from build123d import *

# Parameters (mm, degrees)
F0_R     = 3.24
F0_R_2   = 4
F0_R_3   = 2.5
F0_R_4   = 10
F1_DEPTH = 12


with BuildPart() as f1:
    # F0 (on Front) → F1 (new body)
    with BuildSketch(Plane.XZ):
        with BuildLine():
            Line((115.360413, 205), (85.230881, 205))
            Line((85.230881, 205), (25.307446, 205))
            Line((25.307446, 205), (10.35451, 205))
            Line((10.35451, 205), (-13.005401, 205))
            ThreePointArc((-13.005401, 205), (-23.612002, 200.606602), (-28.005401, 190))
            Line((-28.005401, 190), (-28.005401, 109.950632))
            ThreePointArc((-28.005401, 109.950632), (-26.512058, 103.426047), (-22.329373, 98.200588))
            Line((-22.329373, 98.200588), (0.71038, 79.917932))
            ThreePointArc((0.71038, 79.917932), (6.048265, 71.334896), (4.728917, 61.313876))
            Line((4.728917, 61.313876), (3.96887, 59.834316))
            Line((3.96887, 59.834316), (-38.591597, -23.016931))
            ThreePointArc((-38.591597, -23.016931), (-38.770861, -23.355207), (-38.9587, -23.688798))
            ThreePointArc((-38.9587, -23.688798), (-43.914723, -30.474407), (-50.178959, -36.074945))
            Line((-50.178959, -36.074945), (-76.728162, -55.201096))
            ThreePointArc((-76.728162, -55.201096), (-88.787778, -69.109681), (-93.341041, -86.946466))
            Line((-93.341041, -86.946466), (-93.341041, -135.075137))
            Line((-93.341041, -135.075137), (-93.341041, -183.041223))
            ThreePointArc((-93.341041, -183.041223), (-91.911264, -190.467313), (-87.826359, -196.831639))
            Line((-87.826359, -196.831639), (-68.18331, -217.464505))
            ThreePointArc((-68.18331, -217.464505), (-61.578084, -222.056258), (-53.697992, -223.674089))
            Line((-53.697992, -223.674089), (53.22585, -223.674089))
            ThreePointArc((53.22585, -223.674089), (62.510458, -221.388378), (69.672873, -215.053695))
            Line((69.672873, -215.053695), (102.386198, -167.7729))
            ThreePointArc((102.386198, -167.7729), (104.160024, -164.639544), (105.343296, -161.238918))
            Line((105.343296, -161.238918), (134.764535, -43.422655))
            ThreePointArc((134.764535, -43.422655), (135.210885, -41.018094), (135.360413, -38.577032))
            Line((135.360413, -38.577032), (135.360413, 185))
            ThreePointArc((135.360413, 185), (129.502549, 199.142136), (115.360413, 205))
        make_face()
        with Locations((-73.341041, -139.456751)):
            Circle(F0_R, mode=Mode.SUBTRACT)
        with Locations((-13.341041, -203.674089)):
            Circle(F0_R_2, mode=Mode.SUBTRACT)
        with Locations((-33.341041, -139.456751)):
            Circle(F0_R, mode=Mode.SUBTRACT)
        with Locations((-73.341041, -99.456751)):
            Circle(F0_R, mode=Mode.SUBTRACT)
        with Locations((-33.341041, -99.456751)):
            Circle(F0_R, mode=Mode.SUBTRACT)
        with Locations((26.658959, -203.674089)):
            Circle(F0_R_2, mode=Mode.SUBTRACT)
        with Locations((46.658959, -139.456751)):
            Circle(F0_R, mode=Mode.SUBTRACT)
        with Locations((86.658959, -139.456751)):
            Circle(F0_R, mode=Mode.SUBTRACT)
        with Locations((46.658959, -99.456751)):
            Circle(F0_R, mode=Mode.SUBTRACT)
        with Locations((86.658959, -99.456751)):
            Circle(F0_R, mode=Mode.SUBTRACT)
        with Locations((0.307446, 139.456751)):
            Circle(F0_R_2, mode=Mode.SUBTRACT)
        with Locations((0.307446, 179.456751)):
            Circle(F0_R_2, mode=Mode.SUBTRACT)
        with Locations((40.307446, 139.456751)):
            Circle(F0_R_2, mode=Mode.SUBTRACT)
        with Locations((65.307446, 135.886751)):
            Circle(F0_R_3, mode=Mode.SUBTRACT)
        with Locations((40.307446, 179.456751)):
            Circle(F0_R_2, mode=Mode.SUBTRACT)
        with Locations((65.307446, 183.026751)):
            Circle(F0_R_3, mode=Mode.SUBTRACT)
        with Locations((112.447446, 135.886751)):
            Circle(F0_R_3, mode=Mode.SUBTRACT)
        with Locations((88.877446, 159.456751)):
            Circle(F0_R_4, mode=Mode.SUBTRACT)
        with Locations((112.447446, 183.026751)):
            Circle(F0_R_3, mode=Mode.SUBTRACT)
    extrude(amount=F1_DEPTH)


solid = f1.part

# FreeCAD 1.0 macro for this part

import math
import FreeCAD as App
import Part
import Sketcher

doc = App.newDocument("Part")
body = doc.addObject("PartDesign::Body", "Body")

# Sketch on XZ plane
sketch1 = body.newObject("Sketcher::SketchObject", "Sketch")
sketch1.AttachmentSupport = (doc.getObject("XZ_Plane"), [""])
sketch1.MapMode = "FlatFace"
sketch1.addGeometry([
    Part.LineSegment(App.Vector(115.360413, 205, 0), App.Vector(-13.005401, 205, 0)),  # 0
    Part.ArcOfCircle(Part.Circle(App.Vector(-13.0054, 189.999999, 0), App.Vector(0, 0, 1), 15.000001), math.radians(90.000003), math.radians(179.999997)),  # 1
    Part.LineSegment(App.Vector(-28.005401, 190, 0), App.Vector(-28.005401, 109.950632, 0)),  # 2
    Part.ArcOfCircle(Part.Circle(App.Vector(-13.005401, 109.950633, 0), App.Vector(0, 0, 1), 15), math.radians(-179.999998), math.radians(-128.432933)),  # 3
    Part.LineSegment(App.Vector(-22.329373, 98.200588, 0), App.Vector(0.71038, 79.917932, 0)),  # 4
    Part.ArcOfCircle(Part.Circle(App.Vector(-8.613594, 68.167886, 0), App.Vector(0, 0, 1), 15.000002), math.radians(-27.189438), math.radians(51.567063)),  # 5
    Part.LineSegment(App.Vector(4.728917, 61.313876, 0), App.Vector(3.96887, 59.834316, 0)),  # 6
    Part.LineSegment(App.Vector(3.96887, 59.834316, 0), App.Vector(-38.591597, -23.016931, 0)),  # 7
    Part.ArcOfCircle(Part.Circle(App.Vector(-51.933711, -16.163126, 0), App.Vector(0, 0, 1), 14.999555), math.radians(-30.114279), math.radians(-27.189432)),  # 8
    Part.ArcOfCircle(Part.Circle(App.Vector(-73.559777, -3.619795, 0), App.Vector(0, 0, 1), 39.999992), math.radians(-54.230873), math.radians(-30.114202)),  # 9
    Part.LineSegment(App.Vector(-50.178959, -36.074945, 0), App.Vector(-76.728162, -55.201096, 0)),  # 10
    Part.ArcOfCircle(Part.Circle(App.Vector(-53.347338, -87.656252, 0), App.Vector(0, 0, 1), 40.000001), math.radians(125.769129), math.radians(178.983254)),  # 11
    Part.LineSegment(App.Vector(-93.341041, -86.946466, 0), App.Vector(-93.341041, -183.041223, 0)),  # 12
    Part.ArcOfCircle(Part.Circle(App.Vector(-73.341037, -183.041222, 0), App.Vector(0, 0, 1), 20.000004), math.radians(-179.999997), math.radians(-136.407818)),  # 13
    Part.LineSegment(App.Vector(-87.826359, -196.831639, 0), App.Vector(-68.18331, -217.464505, 0)),  # 14
    Part.ArcOfCircle(Part.Circle(App.Vector(-53.69799, -203.674084, 0), App.Vector(0, 0, 1), 20.000005), math.radians(-136.407805), math.radians(-90.000006)),  # 15
    Part.LineSegment(App.Vector(-53.697992, -223.674089, 0), App.Vector(53.22585, -223.674089, 0)),  # 16
    Part.ArcOfCircle(Part.Circle(App.Vector(53.225848, -203.674085, 0), App.Vector(0, 0, 1), 20.000004), math.radians(-89.999994), math.radians(-34.679155)),  # 17
    Part.LineSegment(App.Vector(69.672873, -215.053695, 0), App.Vector(102.386198, -167.7729, 0)),  # 18
    Part.ArcOfCircle(Part.Circle(App.Vector(85.939155, -156.393286, 0), App.Vector(0, 0, 1), 20.000021), math.radians(-34.679136), math.radians(-14.021226)),  # 19
    Part.LineSegment(App.Vector(105.343296, -161.238918, 0), App.Vector(134.764535, -43.422655, 0)),  # 20
    Part.ArcOfCircle(Part.Circle(App.Vector(115.360466, -38.57704, 0), App.Vector(0, 0, 1), 19.999947), math.radians(-14.021229), math.radians(0.000022)),  # 21
    Part.LineSegment(App.Vector(135.360413, -38.577032, 0), App.Vector(135.360413, 185, 0)),  # 22
    Part.ArcOfCircle(Part.Circle(App.Vector(115.360414, 185.000001, 0), App.Vector(0, 0, 1), 19.999999), math.radians(-0.000004), math.radians(90.000004)),  # 23
    Part.Circle(App.Vector(-73.341041, -139.456751, 0), App.Vector(0, 0, 1), 3.24),  # 24
    Part.Circle(App.Vector(-33.341041, -139.456751, 0), App.Vector(0, 0, 1), 3.24),  # 25
    Part.Circle(App.Vector(-13.341041, -203.674089, 0), App.Vector(0, 0, 1), 4),  # 26
    Part.Circle(App.Vector(-73.341041, -99.456751, 0), App.Vector(0, 0, 1), 3.24),  # 27
    Part.Circle(App.Vector(-33.341041, -99.456751, 0), App.Vector(0, 0, 1), 3.24),  # 28
    Part.Circle(App.Vector(26.658959, -203.674089, 0), App.Vector(0, 0, 1), 4),  # 29
    Part.Circle(App.Vector(46.658959, -139.456751, 0), App.Vector(0, 0, 1), 3.24),  # 30
    Part.Circle(App.Vector(86.658959, -139.456751, 0), App.Vector(0, 0, 1), 3.24),  # 31
    Part.Circle(App.Vector(46.658959, -99.456751, 0), App.Vector(0, 0, 1), 3.24),  # 32
    Part.Circle(App.Vector(86.658959, -99.456751, 0), App.Vector(0, 0, 1), 3.24),  # 33
    Part.Circle(App.Vector(0.307446, 139.456751, 0), App.Vector(0, 0, 1), 4),  # 34
    Part.Circle(App.Vector(0.307446, 179.456751, 0), App.Vector(0, 0, 1), 4),  # 35
    Part.Circle(App.Vector(65.307446, 135.886751, 0), App.Vector(0, 0, 1), 2.5),  # 36
    Part.Circle(App.Vector(40.307446, 139.456751, 0), App.Vector(0, 0, 1), 4),  # 37
    Part.Circle(App.Vector(40.307446, 179.456751, 0), App.Vector(0, 0, 1), 4),  # 38
    Part.Circle(App.Vector(65.307446, 183.026751, 0), App.Vector(0, 0, 1), 2.5),  # 39
    Part.Circle(App.Vector(112.447446, 135.886751, 0), App.Vector(0, 0, 1), 2.5),  # 40
    Part.Circle(App.Vector(88.877446, 159.456751, 0), App.Vector(0, 0, 1), 10),  # 41
    Part.Circle(App.Vector(112.447446, 183.026751, 0), App.Vector(0, 0, 1), 2.5),  # 42
], False)
sketch1.addConstraint([
    Sketcher.Constraint("Coincident", 0, 2, 1, 1),
    Sketcher.Constraint("Coincident", 1, 2, 2, 1),
    Sketcher.Constraint("Coincident", 2, 2, 3, 1),
    Sketcher.Constraint("Coincident", 3, 2, 4, 1),
    Sketcher.Constraint("Coincident", 4, 2, 5, 2),
    Sketcher.Constraint("Coincident", 5, 1, 6, 1),
    Sketcher.Constraint("Coincident", 6, 2, 7, 1),
    Sketcher.Constraint("Coincident", 7, 2, 8, 2),
    Sketcher.Constraint("Coincident", 8, 1, 9, 2),
    Sketcher.Constraint("Coincident", 9, 1, 10, 1),
    Sketcher.Constraint("Coincident", 10, 2, 11, 1),
    Sketcher.Constraint("Coincident", 11, 2, 12, 1),
    Sketcher.Constraint("Coincident", 12, 2, 13, 1),
    Sketcher.Constraint("Coincident", 13, 2, 14, 1),
    Sketcher.Constraint("Coincident", 14, 2, 15, 1),
    Sketcher.Constraint("Coincident", 15, 2, 16, 1),
    Sketcher.Constraint("Coincident", 16, 2, 17, 1),
    Sketcher.Constraint("Coincident", 17, 2, 18, 1),
    Sketcher.Constraint("Coincident", 18, 2, 19, 1),
    Sketcher.Constraint("Coincident", 19, 2, 20, 1),
    Sketcher.Constraint("Coincident", 20, 2, 21, 1),
    Sketcher.Constraint("Coincident", 21, 2, 22, 1),
    Sketcher.Constraint("Coincident", 22, 2, 23, 1),
    Sketcher.Constraint("Coincident", 23, 2, 0, 1),
    Sketcher.Constraint("Horizontal", 0),
    Sketcher.Constraint("Vertical", 2),
    Sketcher.Constraint("Vertical", 12),
    Sketcher.Constraint("Horizontal", 16),
    Sketcher.Constraint("Vertical", 22),
    Sketcher.Constraint("Diameter", 26, 8.0),
    Sketcher.Constraint("Diameter", 29, 8.0),
    Sketcher.Constraint("Diameter", 34, 8.0),
    Sketcher.Constraint("Diameter", 35, 8.0),
    Sketcher.Constraint("Diameter", 36, 5.0),
    Sketcher.Constraint("Diameter", 37, 8.0),
    Sketcher.Constraint("Diameter", 38, 8.0),
    Sketcher.Constraint("Diameter", 39, 5.0),
    Sketcher.Constraint("Diameter", 40, 5.0),
    Sketcher.Constraint("Diameter", 41, 20.0),
    Sketcher.Constraint("Diameter", 42, 5.0),
    Sketcher.Constraint("Radius", 1, 15.000001),
    Sketcher.Constraint("Radius", 3, 15.0),
    Sketcher.Constraint("Radius", 11, 40.000001),
    Sketcher.Constraint("Radius", 23, 19.999999),
    Sketcher.Constraint("Diameter", 24, 6.48),
    Sketcher.Constraint("Diameter", 25, 6.48),
    Sketcher.Constraint("Diameter", 27, 6.48),
    Sketcher.Constraint("Diameter", 28, 6.48),
    Sketcher.Constraint("Diameter", 30, 6.48),
    Sketcher.Constraint("Diameter", 31, 6.48),
    Sketcher.Constraint("Diameter", 32, 6.48),
    Sketcher.Constraint("Diameter", 33, 6.48),
    Sketcher.Constraint("DistanceY", -1, 1, 1, 3, 189.999999),
    Sketcher.Constraint("DistanceY", -1, 1, 1, 2, 190.0),
    Sketcher.Constraint("DistanceY", -1, 1, 22, 2, 185.0),
    Sketcher.Constraint("DistanceX", 24, 3, 25, 3, 40.0),
    Sketcher.Constraint("DistanceX", 25, 3, 26, 3, 20.0),
    Sketcher.Constraint("DistanceY", 24, 3, 27, 3, 40.0),
    Sketcher.Constraint("DistanceX", 27, 3, 25, 3, 40.0),
    Sketcher.Constraint("DistanceY", 25, 3, 27, 3, 40.0),
    Sketcher.Constraint("DistanceY", 25, 3, 28, 3, 40.0),
    Sketcher.Constraint("DistanceX", 27, 3, 28, 3, 40.0),
    Sketcher.Constraint("DistanceX", 26, 3, 29, 3, 40.0),
    Sketcher.Constraint("DistanceX", 29, 3, 30, 3, 20.0),
    Sketcher.Constraint("DistanceX", 30, 3, 31, 3, 40.0),
    Sketcher.Constraint("DistanceY", 30, 3, 32, 3, 40.0),
    Sketcher.Constraint("DistanceX", 32, 3, 31, 3, 40.0),
    Sketcher.Constraint("DistanceY", 31, 3, 32, 3, 40.0),
    Sketcher.Constraint("DistanceY", 25, 3, 32, 3, 40.0),
    Sketcher.Constraint("DistanceX", 32, 3, 33, 3, 40.0),
    Sketcher.Constraint("DistanceY", 31, 3, 33, 3, 40.0),
    Sketcher.Constraint("DistanceY", 34, 3, 35, 3, 40.0),
    Sketcher.Constraint("DistanceX", 34, 3, 36, 3, 65.0),
    Sketcher.Constraint("DistanceX", 35, 3, 36, 3, 65.0),
    Sketcher.Constraint("DistanceX", 37, 3, 36, 3, 25.0),
    Sketcher.Constraint("DistanceY", 37, 3, 35, 3, 40.0),
    Sketcher.Constraint("DistanceX", 35, 3, 38, 3, 40.0),
    Sketcher.Constraint("DistanceY", 37, 3, 38, 3, 40.0),
    Sketcher.Constraint("DistanceX", 38, 3, 39, 3, 25.0),
    Sketcher.Constraint("DistanceY", 37, 3, 41, 3, 20.0),
    Sketcher.Constraint("DistanceX", 1, 2, 0, 2, 15.0),
    Sketcher.Constraint("DistanceX", 11, 2, 27, 3, 20.0),
    Sketcher.Constraint("DistanceY", 15, 2, 26, 3, 20.0),
    Sketcher.Constraint("DistanceY", 16, 2, 29, 3, 20.0),
    Sketcher.Constraint("DistanceX", 23, 2, 22, 2, 20.0),
    Sketcher.Constraint("Radius", 19, 20.000021),
    Sketcher.Constraint("DistanceY", 36, 3, 34, 3, 3.57),
    Sketcher.Constraint("DistanceY", 38, 3, 39, 3, 3.57),
    Sketcher.Constraint("DistanceX", 36, 3, 40, 3, 47.14),
    Sketcher.Constraint("DistanceY", 40, 3, 39, 3, 47.14),
    Sketcher.Constraint("DistanceX", 41, 3, 40, 3, 23.57),
    Sketcher.Constraint("DistanceX", 41, 3, 42, 3, 23.57),
    Sketcher.Constraint("DistanceY", 41, 3, 42, 3, 23.57),
    Sketcher.Constraint("Radius", 5, 15.000002),
    Sketcher.Constraint("Radius", 8, 14.999555),
    Sketcher.Constraint("Radius", 9, 39.999992),
    Sketcher.Constraint("Radius", 13, 20.000004),
    Sketcher.Constraint("Radius", 15, 20.000005),
    Sketcher.Constraint("Radius", 17, 20.000004),
    Sketcher.Constraint("Radius", 21, 19.999947),
    Sketcher.Constraint("DistanceY", 2, 2, 2, 1, 80.049368),
    Sketcher.Constraint("DistanceY", 22, 1, 22, 2, 223.577032),
    Sketcher.Constraint("DistanceX", 1, 3, -1, 1, 13.0054),
    Sketcher.Constraint("DistanceX", 8, 1, -1, 1, 38.9587),
    Sketcher.Constraint("DistanceY", 8, 1, -1, 1, 23.688798),
    Sketcher.Constraint("DistanceY", 18, 2, -1, 1, 167.7729),
    Sketcher.Constraint("DistanceX", 13, 3, 11, 3, 19.993699),
    Sketcher.Constraint("DistanceY", 17, 3, 19, 3, 47.280799),
    Sketcher.Constraint("DistanceY", 24, 3, 11, 3, 51.800499),
    Sketcher.Constraint("DistanceY", 5, 3, 3, 2, 30.032702),
    Sketcher.Constraint("DistanceY", 4, 2, 3, 3, 30.032701),
    Sketcher.Constraint("DistanceY", 4, 2, 2, 2, 30.0327),
    Sketcher.Constraint("Distance", 4, 29.41234),
    Sketcher.Constraint("Distance", 6, 1.663361),
    Sketcher.Constraint("Distance", 7, 93.143558),
    Sketcher.Constraint("Distance", 10, 32.721092),
    Sketcher.Constraint("Distance", 14, 28.487972),
    Sketcher.Constraint("DistanceX", 0, 2, 0, 1, 128.365814),
    Sketcher.Constraint("DistanceX", 16, 1, 16, 2, 106.923842),
    Sketcher.Constraint("DistanceY", 12, 2, 12, 1, 96.094757),
    Sketcher.Constraint("DistanceX", 8, 3, -1, 1, 51.933711),
    Sketcher.Constraint("DistanceX", 11, 3, -1, 1, 53.347338),
    Sketcher.Constraint("DistanceY", 11, 3, -1, 1, 87.656252),
    Sketcher.Constraint("DistanceY", 13, 3, -1, 1, 183.041222),
    Sketcher.Constraint("DistanceX", 15, 3, -1, 1, 53.69799),
    Sketcher.Constraint("DistanceX", -1, 1, 17, 3, 53.225848),
    Sketcher.Constraint("DistanceY", 21, 3, -1, 1, 38.57704),
    Sketcher.Constraint("DistanceY", 26, 3, -1, 1, 203.674089),
    Sketcher.Constraint("DistanceY", -1, 1, 34, 3, 139.456751),
    Sketcher.Constraint("DistanceX", -1, 1, 4, 2, 0.71038),
    Sketcher.Constraint("DistanceX", -1, 1, 6, 2, 3.96887),
    Sketcher.Constraint("DistanceY", 7, 2, -1, 1, 23.016931),
    Sketcher.Constraint("DistanceX", 9, 1, -1, 1, 50.178959),
    Sketcher.Constraint("DistanceX", 10, 2, -1, 1, 76.728162),
    Sketcher.Constraint("DistanceX", 13, 2, -1, 1, 87.826359),
    Sketcher.Constraint("DistanceX", -1, 1, 16, 2, 53.22585),
    Sketcher.Constraint("DistanceX", 19, 3, 21, 3, 29.42131),
    Sketcher.Constraint("DistanceX", 5, 3, 34, 3, 8.92104),
    Sketcher.Constraint("DistanceY", 17, 2, 17, 3, 11.37961),
    Sketcher.Constraint("DistanceX", 19, 3, 19, 2, 19.404141),
    Sketcher.Constraint("DistanceX", 21, 3, 20, 2, 19.404069),
])
pad1 = body.newObject("PartDesign::Pad", "Pad")
pad1.Profile = sketch1
pad1.Length = 12

doc.recompute()
